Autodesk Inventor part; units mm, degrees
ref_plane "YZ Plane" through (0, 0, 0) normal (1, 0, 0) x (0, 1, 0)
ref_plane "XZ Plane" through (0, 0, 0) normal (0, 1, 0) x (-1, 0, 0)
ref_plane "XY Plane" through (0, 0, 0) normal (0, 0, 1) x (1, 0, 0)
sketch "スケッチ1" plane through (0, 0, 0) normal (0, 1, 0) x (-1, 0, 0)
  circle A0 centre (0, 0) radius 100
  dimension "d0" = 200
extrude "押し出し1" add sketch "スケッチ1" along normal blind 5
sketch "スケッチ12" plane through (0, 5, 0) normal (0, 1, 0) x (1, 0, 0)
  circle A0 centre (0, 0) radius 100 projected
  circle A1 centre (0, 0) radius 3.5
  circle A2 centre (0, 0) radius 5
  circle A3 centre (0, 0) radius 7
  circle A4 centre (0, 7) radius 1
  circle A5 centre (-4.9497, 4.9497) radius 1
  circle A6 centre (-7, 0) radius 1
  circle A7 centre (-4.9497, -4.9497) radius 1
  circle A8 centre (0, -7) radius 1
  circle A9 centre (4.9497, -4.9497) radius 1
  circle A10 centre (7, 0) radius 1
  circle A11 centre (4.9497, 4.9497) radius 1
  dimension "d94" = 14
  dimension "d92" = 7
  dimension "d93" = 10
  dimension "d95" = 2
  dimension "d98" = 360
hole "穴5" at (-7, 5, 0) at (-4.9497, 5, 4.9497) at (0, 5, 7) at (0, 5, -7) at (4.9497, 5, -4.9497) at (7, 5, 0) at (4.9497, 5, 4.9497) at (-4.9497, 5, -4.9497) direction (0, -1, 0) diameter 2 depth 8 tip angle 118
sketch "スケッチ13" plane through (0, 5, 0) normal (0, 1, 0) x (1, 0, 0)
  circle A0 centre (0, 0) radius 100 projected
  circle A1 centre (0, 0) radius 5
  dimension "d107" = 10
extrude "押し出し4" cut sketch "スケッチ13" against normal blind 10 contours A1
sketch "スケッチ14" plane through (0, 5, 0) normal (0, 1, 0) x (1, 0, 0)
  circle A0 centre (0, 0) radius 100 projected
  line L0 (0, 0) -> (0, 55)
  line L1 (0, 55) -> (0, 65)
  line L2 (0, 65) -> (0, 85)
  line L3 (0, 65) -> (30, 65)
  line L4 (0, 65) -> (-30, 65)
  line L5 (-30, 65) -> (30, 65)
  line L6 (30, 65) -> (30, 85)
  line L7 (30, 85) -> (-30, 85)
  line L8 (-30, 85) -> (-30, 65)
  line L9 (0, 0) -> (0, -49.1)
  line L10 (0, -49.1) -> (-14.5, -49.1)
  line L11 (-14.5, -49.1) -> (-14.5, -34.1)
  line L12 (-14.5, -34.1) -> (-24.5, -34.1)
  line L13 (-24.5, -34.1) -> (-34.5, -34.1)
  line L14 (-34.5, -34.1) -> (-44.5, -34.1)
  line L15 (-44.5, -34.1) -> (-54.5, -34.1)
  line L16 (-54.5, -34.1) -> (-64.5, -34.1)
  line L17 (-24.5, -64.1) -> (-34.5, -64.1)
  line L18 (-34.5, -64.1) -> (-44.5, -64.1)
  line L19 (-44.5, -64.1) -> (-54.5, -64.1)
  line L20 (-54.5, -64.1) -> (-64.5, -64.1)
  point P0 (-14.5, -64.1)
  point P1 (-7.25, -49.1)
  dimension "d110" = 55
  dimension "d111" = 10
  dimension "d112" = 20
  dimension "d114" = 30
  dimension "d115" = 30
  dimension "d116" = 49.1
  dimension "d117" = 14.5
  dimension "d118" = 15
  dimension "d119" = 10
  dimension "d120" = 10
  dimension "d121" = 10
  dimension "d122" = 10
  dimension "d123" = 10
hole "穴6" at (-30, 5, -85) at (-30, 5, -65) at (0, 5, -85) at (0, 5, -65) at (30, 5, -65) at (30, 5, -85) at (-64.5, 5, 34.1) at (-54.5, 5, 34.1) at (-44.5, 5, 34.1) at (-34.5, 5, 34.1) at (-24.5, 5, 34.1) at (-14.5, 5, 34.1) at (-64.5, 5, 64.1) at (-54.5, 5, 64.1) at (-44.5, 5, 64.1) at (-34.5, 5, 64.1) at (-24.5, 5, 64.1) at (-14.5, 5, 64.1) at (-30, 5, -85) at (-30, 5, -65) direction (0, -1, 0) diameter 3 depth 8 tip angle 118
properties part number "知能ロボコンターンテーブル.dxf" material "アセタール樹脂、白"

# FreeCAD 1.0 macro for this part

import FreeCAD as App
import Part
import Sketcher
Q = App.Units.Quantity

doc = App.newDocument("Part")
params = doc.addObject("Spreadsheet::Sheet", "Params")
for row, (alias, value) in enumerate([
    ("sketch1_diameter", "200 mm"),
    ("pad1_length", "5 mm"),
    ("sketch2_diameter", "2 mm"),
    ("hole_diameter", "2 mm"),
    ("hole_depth", "8 mm"),
    ("sketch3_diameter", "10 mm"),
    ("pocket1_length", "10 mm"),
    ("sketch4_diameter", "3 mm"),
    ("hole2_diameter", "3 mm"),
    ("hole2_depth", "8 mm"),
], start=1):
    params.set(f"A{row}", alias)
    params.set(f"B{row}", "=" + value)
    params.setAlias(f"B{row}", alias)

body = doc.addObject("PartDesign::Body", "Body")

# Sketch on XZ plane
sketch1 = body.newObject("Sketcher::SketchObject", "Sketch")
sketch1.AttachmentSupport = (doc.getObject("XZ_Plane"), [""])
sketch1.MapMode = "FlatFace"
sketch1.addGeometry(Part.Circle(App.Vector(0, 0, 0), App.Vector(0, 0, 1), 100), False)
sketch1.addConstraint([
    Sketcher.Constraint("Coincident", 0, 3, -1, 1),
    Sketcher.Constraint("Diameter", 0, Q("200 mm")),
])
sketch1.setExpression("Constraints[1]", "Params.sketch1_diameter")
pad1 = body.newObject("PartDesign::Pad", "Pad")
pad1.Profile = sketch1
pad1.setExpression("Length", "Params.pad1_length")
pad1.Reversed = True

# Sketch on XZ plane
sketch2 = body.newObject("Sketcher::SketchObject", "Sketch001")
sketch2.AttachmentSupport = (doc.getObject("XZ_Plane"), [""])
sketch2.MapMode = "FlatFace"
sketch2.AttachmentOffset = App.Placement(App.Vector(0, 0, -5), App.Rotation())
sketch2.addGeometry([
    Part.Circle(App.Vector(-7, 0, 0), App.Vector(0, 0, 1), 1),  # 0
    Part.Circle(App.Vector(-4.9497, 4.9497, 0), App.Vector(0, 0, 1), 1),  # 1
    Part.Circle(App.Vector(0, 7, 0), App.Vector(0, 0, 1), 1),  # 2
    Part.Circle(App.Vector(0, -7, 0), App.Vector(0, 0, 1), 1),  # 3
    Part.Circle(App.Vector(4.9497, -4.9497, 0), App.Vector(0, 0, 1), 1),  # 4
    Part.Circle(App.Vector(7, 0, 0), App.Vector(0, 0, 1), 1),  # 5
    Part.Circle(App.Vector(4.9497, 4.9497, 0), App.Vector(0, 0, 1), 1),  # 6
    Part.Circle(App.Vector(-4.9497, -4.9497, 0), App.Vector(0, 0, 1), 1),  # 7
], False)
sketch2.addConstraint([
    Sketcher.Constraint("Equal", 0, 1),
    Sketcher.Constraint("Equal", 1, 2),
    Sketcher.Constraint("Equal", 2, 3),
    Sketcher.Constraint("Equal", 3, 4),
    Sketcher.Constraint("Equal", 4, 5),
    Sketcher.Constraint("Equal", 5, 6),
    Sketcher.Constraint("Equal", 6, 7),
    Sketcher.Constraint("Symmetric", 2, 3, 3, 3, -1, 1),
    Sketcher.Constraint("Symmetric", 1, 3, 4, 3, -1, 1),
    Sketcher.Constraint("Symmetric", 0, 3, 5, 3, -1, 1),
    Sketcher.Constraint("Symmetric", 6, 3, 7, 3, -1, 1),
    Sketcher.Constraint("Symmetric", 1, 3, 6, 3, -2),
    Sketcher.Constraint("PointOnObject", 0, 3, -1),
    Sketcher.Constraint("PointOnObject", 2, 3, -2),
    Sketcher.Constraint("Diameter", 0, Q("2 mm")),
    Sketcher.Constraint("DistanceX", 0, 3, -1, 1, Q("7 mm")),
    Sketcher.Constraint("DistanceY", -1, 1, 2, 3, Q("7 mm")),
    Sketcher.Constraint("DistanceX", 1, 3, -1, 1, Q("4.9497 mm")),
    Sketcher.Constraint("DistanceY", -1, 1, 1, 3, Q("4.9497 mm")),
])
sketch2.setExpression("Constraints[14]", "Params.sketch2_diameter")
doc.recompute()
hole = body.newObject("PartDesign::Hole", "Hole")
hole.Profile = sketch2
hole.ThreadType = "None"
hole.setExpression("Diameter", "Params.hole_diameter")
hole.DepthType = "Dimension"
hole.setExpression("Depth", "Params.hole_depth")
hole.DrillPoint = "Angled"
hole.DrillPointAngle = 118
hole.Reversed = True

# Sketch on XZ plane
sketch3 = body.newObject("Sketcher::SketchObject", "Sketch002")
sketch3.AttachmentSupport = (doc.getObject("XZ_Plane"), [""])
sketch3.MapMode = "FlatFace"
sketch3.AttachmentOffset = App.Placement(App.Vector(0, 0, -5), App.Rotation())
sketch3.addGeometry(Part.Circle(App.Vector(0, 0, 0), App.Vector(0, 0, 1), 5), False)
sketch3.addConstraint([
    Sketcher.Constraint("Coincident", 0, 3, -1, 1),
    Sketcher.Constraint("Diameter", 0, Q("10 mm")),
])
sketch3.setExpression("Constraints[1]", "Params.sketch3_diameter")
pocket1 = body.newObject("PartDesign::Pocket", "Pocket")
pocket1.Profile = sketch3
pocket1.setExpression("Length", "Params.pocket1_length")
pocket1.Reversed = True

# Sketch on XZ plane
sketch4 = body.newObject("Sketcher::SketchObject", "Sketch003")
sketch4.AttachmentSupport = (doc.getObject("XZ_Plane"), [""])
sketch4.MapMode = "FlatFace"
sketch4.AttachmentOffset = App.Placement(App.Vector(0, 0, -5), App.Rotation())
sketch4.addGeometry([
    Part.Circle(App.Vector(-30, -85, 0), App.Vector(0, 0, 1), 1.5),  # 0
    Part.Circle(App.Vector(-30, -65, 0), App.Vector(0, 0, 1), 1.5),  # 1
    Part.Circle(App.Vector(0, -85, 0), App.Vector(0, 0, 1), 1.5),  # 2
    Part.Circle(App.Vector(0, -65, 0), App.Vector(0, 0, 1), 1.5),  # 3
    Part.Circle(App.Vector(30, -65, 0), App.Vector(0, 0, 1), 1.5),  # 4
    Part.Circle(App.Vector(30, -85, 0), App.Vector(0, 0, 1), 1.5),  # 5
    Part.Circle(App.Vector(-64.5, 34.1, 0), App.Vector(0, 0, 1), 1.5),  # 6
    Part.Circle(App.Vector(-54.5, 34.1, 0), App.Vector(0, 0, 1), 1.5),  # 7
    Part.Circle(App.Vector(-44.5, 34.1, 0), App.Vector(0, 0, 1), 1.5),  # 8
    Part.Circle(App.Vector(-34.5, 34.1, 0), App.Vector(0, 0, 1), 1.5),  # 9
    Part.Circle(App.Vector(-24.5, 34.1, 0), App.Vector(0, 0, 1), 1.5),  # 10
    Part.Circle(App.Vector(-14.5, 34.1, 0), App.Vector(0, 0, 1), 1.5),  # 11
    Part.Circle(App.Vector(-64.5, 64.1, 0), App.Vector(0, 0, 1), 1.5),  # 12
    Part.Circle(App.Vector(-54.5, 64.1, 0), App.Vector(0, 0, 1), 1.5),  # 13
    Part.Circle(App.Vector(-44.5, 64.1, 0), App.Vector(0, 0, 1), 1.5),  # 14
    Part.Circle(App.Vector(-34.5, 64.1, 0), App.Vector(0, 0, 1), 1.5),  # 15
    Part.Circle(App.Vector(-24.5, 64.1, 0), App.Vector(0, 0, 1), 1.5),  # 16
    Part.Circle(App.Vector(-14.5, 64.1, 0), App.Vector(0, 0, 1), 1.5),  # 17
    Part.Circle(App.Vector(-30, -85, 0), App.Vector(0, 0, 1), 1.5),  # 18
    Part.Circle(App.Vector(-30, -65, 0), App.Vector(0, 0, 1), 1.5),  # 19
], False)
sketch4.addConstraint([
    Sketcher.Constraint("Coincident", 18, 3, 0, 3),
    Sketcher.Constraint("Coincident", 19, 3, 1, 3),
    Sketcher.Constraint("Equal", 0, 1),
    Sketcher.Constraint("Equal", 1, 2),
    Sketcher.Constraint("Equal", 2, 3),
    Sketcher.Constraint("Equal", 3, 4),
    Sketcher.Constraint("Equal", 4, 5),
    Sketcher.Constraint("Equal", 5, 6),
    Sketcher.Constraint("Equal", 6, 7),
    Sketcher.Constraint("Equal", 7, 8),
    Sketcher.Constraint("Equal", 8, 9),
    Sketcher.Constraint("Equal", 9, 10),
    Sketcher.Constraint("Equal", 10, 11),
    Sketcher.Constraint("Equal", 11, 12),
    Sketcher.Constraint("Equal", 12, 13),
    Sketcher.Constraint("Equal", 13, 14),
    Sketcher.Constraint("Equal", 14, 15),
    Sketcher.Constraint("Equal", 15, 16),
    Sketcher.Constraint("Equal", 16, 17),
    Sketcher.Constraint("Equal", 17, 18),
    Sketcher.Constraint("Equal", 18, 19),
    Sketcher.Constraint("Symmetric", 1, 3, 4, 3, -2),
    Sketcher.Constraint("Symmetric", 0, 3, 5, 3, -2),
    Sketcher.Constraint("PointOnObject", 2, 3, -2),
    Sketcher.Constraint("PointOnObject", 3, 3, -2),
    Sketcher.Constraint("Horizontal", 0, 3, 2, 3),
    Sketcher.Constraint("Horizontal", 1, 3, 3, 3),
    Sketcher.Constraint("Horizontal", 6, 3, 7, 3),
    Sketcher.Constraint("Horizontal", 7, 3, 8, 3),
    Sketcher.Constraint("Horizontal", 8, 3, 9, 3),
    Sketcher.Constraint("Horizontal", 9, 3, 10, 3),
    Sketcher.Constraint("Horizontal", 10, 3, 11, 3),
    Sketcher.Constraint("Horizontal", 12, 3, 13, 3),
    Sketcher.Constraint("Horizontal", 13, 3, 14, 3),
    Sketcher.Constraint("Horizontal", 14, 3, 15, 3),
    Sketcher.Constraint("Horizontal", 15, 3, 16, 3),
    Sketcher.Constraint("Horizontal", 16, 3, 17, 3),
    Sketcher.Constraint("Vertical", 0, 3, 1, 3),
    Sketcher.Constraint("Vertical", 6, 3, 12, 3),
    Sketcher.Constraint("Vertical", 7, 3, 13, 3),
    Sketcher.Constraint("Vertical", 8, 3, 14, 3),
    Sketcher.Constraint("Vertical", 9, 3, 15, 3),
    Sketcher.Constraint("Vertical", 10, 3, 16, 3),
    Sketcher.Constraint("Vertical", 11, 3, 17, 3),
    Sketcher.Constraint("Diameter", 0, Q("3 mm")),
    Sketcher.Constraint("DistanceX", 0, 3, -1, 1, Q("30 mm")),
    Sketcher.Constraint("DistanceY", 0, 3, -1, 1, Q("85 mm")),
    Sketcher.Constraint("DistanceY", 1, 3, -1, 1, Q("65 mm")),
    Sketcher.Constraint("DistanceX", 6, 3, 7, 3, Q("10 mm")),
    Sketcher.Constraint("DistanceX", 7, 3, 8, 3, Q("10 mm")),
    Sketcher.Constraint("DistanceX", 8, 3, 9, 3, Q("10 mm")),
    Sketcher.Constraint("DistanceX", 9, 3, 10, 3, Q("10 mm")),
    Sketcher.Constraint("DistanceX", 10, 3, 11, 3, Q("10 mm")),
    Sketcher.Constraint("DistanceY", 6, 3, 12, 3, Q("30 mm")),
    Sketcher.Constraint("DistanceX", 6, 3, -1, 1, Q("64.5 mm")),
    Sketcher.Constraint("DistanceY", -1, 1, 6, 3, Q("34.1 mm")),
])
sketch4.setExpression("Constraints[44]", "Params.sketch4_diameter")
doc.recompute()
hole2 = body.newObject("PartDesign::Hole", "Hole001")
hole2.Profile = sketch4
hole2.ThreadType = "None"
hole2.setExpression("Diameter", "Params.hole2_diameter")
hole2.DepthType = "Dimension"
hole2.setExpression("Depth", "Params.hole2_depth")
hole2.DrillPoint = "Angled"
hole2.DrillPointAngle = 118
hole2.Reversed = True

doc.recompute()
